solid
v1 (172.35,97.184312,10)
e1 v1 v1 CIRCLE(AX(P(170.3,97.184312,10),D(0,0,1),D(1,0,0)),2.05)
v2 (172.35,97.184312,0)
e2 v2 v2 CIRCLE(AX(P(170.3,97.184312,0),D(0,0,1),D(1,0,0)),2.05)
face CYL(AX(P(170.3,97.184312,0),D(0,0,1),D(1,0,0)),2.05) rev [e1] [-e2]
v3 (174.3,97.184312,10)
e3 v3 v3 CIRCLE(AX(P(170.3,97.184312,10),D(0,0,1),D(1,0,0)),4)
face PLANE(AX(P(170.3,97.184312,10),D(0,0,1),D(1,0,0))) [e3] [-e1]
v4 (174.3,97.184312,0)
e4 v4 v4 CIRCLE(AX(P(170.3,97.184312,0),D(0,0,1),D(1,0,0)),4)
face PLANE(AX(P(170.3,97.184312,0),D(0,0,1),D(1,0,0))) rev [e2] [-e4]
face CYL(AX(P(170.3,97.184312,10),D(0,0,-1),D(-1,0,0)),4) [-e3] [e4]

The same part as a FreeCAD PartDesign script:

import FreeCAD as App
import Part
import Sketcher

V = App.Vector
Q = App.Units.Quantity

doc = App.newDocument("Part")
body = doc.addObject("PartDesign::Body", "Body")

# Sketch on XY plane
sketch1 = body.newObject("Sketcher::SketchObject", "Sketch")
sketch1.AttachmentSupport = (doc.getObject("XY_Plane"), [""])
sketch1.MapMode = "FlatFace"
sketch1.addGeometry(Part.Circle(V(170.3, 97.2, 0), V(0, 0, 1), 4), False)
sketch1.addConstraint([
    Sketcher.Constraint("Diameter", 0, Q("8 mm")),
    Sketcher.Constraint("DistanceX", -1, 1, 0, 3, Q("170.3 mm")),
    Sketcher.Constraint("DistanceY", -1, 1, 0, 3, Q("97.184312 mm")),
])
pad1 = body.newObject("PartDesign::Pad", "Pad")
pad1.Profile = sketch1
pad1.Length = 10

# Sketch on XY plane
sketch2 = body.newObject("Sketcher::SketchObject", "Sketch001")
sketch2.AttachmentSupport = (doc.getObject("XY_Plane"), [""])
sketch2.MapMode = "FlatFace"
sketch2.AttachmentOffset = App.Placement(V(0, 0, 10), App.Rotation())
sketch2.addGeometry(Part.Circle(V(170.3, 97.2, 0), V(0, 0, 1), 2), False)
sketch2.addConstraint([
    Sketcher.Constraint("Diameter", 0, Q("4.1 mm")),
    Sketcher.Constraint("DistanceX", -1, 1, 0, 3, Q("170.3 mm")),
    Sketcher.Constraint("DistanceY", -1, 1, 0, 3, Q("97.184312 mm")),
])
pocket1 = body.newObject("PartDesign::Pocket", "Pocket")
pocket1.Profile = sketch2
pocket1.Length = 10

doc.recompute()
